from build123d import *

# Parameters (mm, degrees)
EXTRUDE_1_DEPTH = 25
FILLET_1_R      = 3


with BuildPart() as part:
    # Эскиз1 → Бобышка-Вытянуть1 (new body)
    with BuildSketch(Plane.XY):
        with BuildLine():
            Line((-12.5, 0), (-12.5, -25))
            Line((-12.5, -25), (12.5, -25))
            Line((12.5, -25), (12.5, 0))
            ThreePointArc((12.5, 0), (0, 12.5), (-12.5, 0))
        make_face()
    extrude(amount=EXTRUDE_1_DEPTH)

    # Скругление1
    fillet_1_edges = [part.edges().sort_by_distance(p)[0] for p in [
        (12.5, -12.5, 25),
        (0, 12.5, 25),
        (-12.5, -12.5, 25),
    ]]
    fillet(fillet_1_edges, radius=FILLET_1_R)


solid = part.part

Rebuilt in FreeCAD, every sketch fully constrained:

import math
import FreeCAD as App
import Part
import Sketcher


def edges_at(feature, points):
    """Names of the edges that pass closest to the given points."""
    edges = feature.Shape.Edges
    near = lambda p: min(range(len(edges)), key=lambda i: edges[i].distToShape(Part.Vertex(*p))[0])
    return sorted({f"Edge{near(p) + 1}" for p in points})

doc = App.newDocument("Part")
body = doc.addObject("PartDesign::Body", "Body")

# Sketch on XY plane
sketch1 = doc.addObject("Sketcher::SketchObject", "Sketch")
body.addObject(sketch1)
sketch1.AttachmentSupport = (doc.XY_Plane, [""])
sketch1.MapMode = "FlatFace"
sketch1.addGeometry([
    Part.LineSegment(App.Vector(-12, 0, 0), App.Vector(-12, -25, 0)),
    Part.LineSegment(App.Vector(-12, -25, 0), App.Vector(12, -25, 0)),
    Part.LineSegment(App.Vector(12, -25, 0), App.Vector(12, 0, 0)),
    Part.ArcOfCircle(Part.Circle(App.Vector(0, 0, 0), App.Vector(0, 0, 1), 12), math.radians(0), math.radians(180)),
], False)
sketch1.addConstraint([
    Sketcher.Constraint("Coincident", 0, 2, 1, 1),
    Sketcher.Constraint("Coincident", 1, 2, 2, 1),
    Sketcher.Constraint("Tangent", 2, 2, 3, 1),
    Sketcher.Constraint("Tangent", 3, 2, 0, 1),
    Sketcher.Constraint("Vertical", 0),
    Sketcher.Constraint("Horizontal", 1),
    Sketcher.Constraint("Vertical", 2),
    Sketcher.Constraint("Coincident", 3, 3, -1, 1),
    Sketcher.Constraint("Equal", 1, 0),
    Sketcher.Constraint("Radius", 3, 12.5),
])
pad1 = doc.addObject("PartDesign::Pad", "Pad")
body.addObject(pad1)
pad1.Profile = sketch1
pad1.Length = 25
doc.recompute()

fillet = doc.addObject("PartDesign::Fillet", "Fillet")
body.addObject(fillet)
fillet.Base = (pad1, edges_at(pad1, [(12.5, -12.5, 25), (0, 12.5, 25), (-12.5, -12.5, 25)]))
fillet.Radius = 3

doc.recompute()
